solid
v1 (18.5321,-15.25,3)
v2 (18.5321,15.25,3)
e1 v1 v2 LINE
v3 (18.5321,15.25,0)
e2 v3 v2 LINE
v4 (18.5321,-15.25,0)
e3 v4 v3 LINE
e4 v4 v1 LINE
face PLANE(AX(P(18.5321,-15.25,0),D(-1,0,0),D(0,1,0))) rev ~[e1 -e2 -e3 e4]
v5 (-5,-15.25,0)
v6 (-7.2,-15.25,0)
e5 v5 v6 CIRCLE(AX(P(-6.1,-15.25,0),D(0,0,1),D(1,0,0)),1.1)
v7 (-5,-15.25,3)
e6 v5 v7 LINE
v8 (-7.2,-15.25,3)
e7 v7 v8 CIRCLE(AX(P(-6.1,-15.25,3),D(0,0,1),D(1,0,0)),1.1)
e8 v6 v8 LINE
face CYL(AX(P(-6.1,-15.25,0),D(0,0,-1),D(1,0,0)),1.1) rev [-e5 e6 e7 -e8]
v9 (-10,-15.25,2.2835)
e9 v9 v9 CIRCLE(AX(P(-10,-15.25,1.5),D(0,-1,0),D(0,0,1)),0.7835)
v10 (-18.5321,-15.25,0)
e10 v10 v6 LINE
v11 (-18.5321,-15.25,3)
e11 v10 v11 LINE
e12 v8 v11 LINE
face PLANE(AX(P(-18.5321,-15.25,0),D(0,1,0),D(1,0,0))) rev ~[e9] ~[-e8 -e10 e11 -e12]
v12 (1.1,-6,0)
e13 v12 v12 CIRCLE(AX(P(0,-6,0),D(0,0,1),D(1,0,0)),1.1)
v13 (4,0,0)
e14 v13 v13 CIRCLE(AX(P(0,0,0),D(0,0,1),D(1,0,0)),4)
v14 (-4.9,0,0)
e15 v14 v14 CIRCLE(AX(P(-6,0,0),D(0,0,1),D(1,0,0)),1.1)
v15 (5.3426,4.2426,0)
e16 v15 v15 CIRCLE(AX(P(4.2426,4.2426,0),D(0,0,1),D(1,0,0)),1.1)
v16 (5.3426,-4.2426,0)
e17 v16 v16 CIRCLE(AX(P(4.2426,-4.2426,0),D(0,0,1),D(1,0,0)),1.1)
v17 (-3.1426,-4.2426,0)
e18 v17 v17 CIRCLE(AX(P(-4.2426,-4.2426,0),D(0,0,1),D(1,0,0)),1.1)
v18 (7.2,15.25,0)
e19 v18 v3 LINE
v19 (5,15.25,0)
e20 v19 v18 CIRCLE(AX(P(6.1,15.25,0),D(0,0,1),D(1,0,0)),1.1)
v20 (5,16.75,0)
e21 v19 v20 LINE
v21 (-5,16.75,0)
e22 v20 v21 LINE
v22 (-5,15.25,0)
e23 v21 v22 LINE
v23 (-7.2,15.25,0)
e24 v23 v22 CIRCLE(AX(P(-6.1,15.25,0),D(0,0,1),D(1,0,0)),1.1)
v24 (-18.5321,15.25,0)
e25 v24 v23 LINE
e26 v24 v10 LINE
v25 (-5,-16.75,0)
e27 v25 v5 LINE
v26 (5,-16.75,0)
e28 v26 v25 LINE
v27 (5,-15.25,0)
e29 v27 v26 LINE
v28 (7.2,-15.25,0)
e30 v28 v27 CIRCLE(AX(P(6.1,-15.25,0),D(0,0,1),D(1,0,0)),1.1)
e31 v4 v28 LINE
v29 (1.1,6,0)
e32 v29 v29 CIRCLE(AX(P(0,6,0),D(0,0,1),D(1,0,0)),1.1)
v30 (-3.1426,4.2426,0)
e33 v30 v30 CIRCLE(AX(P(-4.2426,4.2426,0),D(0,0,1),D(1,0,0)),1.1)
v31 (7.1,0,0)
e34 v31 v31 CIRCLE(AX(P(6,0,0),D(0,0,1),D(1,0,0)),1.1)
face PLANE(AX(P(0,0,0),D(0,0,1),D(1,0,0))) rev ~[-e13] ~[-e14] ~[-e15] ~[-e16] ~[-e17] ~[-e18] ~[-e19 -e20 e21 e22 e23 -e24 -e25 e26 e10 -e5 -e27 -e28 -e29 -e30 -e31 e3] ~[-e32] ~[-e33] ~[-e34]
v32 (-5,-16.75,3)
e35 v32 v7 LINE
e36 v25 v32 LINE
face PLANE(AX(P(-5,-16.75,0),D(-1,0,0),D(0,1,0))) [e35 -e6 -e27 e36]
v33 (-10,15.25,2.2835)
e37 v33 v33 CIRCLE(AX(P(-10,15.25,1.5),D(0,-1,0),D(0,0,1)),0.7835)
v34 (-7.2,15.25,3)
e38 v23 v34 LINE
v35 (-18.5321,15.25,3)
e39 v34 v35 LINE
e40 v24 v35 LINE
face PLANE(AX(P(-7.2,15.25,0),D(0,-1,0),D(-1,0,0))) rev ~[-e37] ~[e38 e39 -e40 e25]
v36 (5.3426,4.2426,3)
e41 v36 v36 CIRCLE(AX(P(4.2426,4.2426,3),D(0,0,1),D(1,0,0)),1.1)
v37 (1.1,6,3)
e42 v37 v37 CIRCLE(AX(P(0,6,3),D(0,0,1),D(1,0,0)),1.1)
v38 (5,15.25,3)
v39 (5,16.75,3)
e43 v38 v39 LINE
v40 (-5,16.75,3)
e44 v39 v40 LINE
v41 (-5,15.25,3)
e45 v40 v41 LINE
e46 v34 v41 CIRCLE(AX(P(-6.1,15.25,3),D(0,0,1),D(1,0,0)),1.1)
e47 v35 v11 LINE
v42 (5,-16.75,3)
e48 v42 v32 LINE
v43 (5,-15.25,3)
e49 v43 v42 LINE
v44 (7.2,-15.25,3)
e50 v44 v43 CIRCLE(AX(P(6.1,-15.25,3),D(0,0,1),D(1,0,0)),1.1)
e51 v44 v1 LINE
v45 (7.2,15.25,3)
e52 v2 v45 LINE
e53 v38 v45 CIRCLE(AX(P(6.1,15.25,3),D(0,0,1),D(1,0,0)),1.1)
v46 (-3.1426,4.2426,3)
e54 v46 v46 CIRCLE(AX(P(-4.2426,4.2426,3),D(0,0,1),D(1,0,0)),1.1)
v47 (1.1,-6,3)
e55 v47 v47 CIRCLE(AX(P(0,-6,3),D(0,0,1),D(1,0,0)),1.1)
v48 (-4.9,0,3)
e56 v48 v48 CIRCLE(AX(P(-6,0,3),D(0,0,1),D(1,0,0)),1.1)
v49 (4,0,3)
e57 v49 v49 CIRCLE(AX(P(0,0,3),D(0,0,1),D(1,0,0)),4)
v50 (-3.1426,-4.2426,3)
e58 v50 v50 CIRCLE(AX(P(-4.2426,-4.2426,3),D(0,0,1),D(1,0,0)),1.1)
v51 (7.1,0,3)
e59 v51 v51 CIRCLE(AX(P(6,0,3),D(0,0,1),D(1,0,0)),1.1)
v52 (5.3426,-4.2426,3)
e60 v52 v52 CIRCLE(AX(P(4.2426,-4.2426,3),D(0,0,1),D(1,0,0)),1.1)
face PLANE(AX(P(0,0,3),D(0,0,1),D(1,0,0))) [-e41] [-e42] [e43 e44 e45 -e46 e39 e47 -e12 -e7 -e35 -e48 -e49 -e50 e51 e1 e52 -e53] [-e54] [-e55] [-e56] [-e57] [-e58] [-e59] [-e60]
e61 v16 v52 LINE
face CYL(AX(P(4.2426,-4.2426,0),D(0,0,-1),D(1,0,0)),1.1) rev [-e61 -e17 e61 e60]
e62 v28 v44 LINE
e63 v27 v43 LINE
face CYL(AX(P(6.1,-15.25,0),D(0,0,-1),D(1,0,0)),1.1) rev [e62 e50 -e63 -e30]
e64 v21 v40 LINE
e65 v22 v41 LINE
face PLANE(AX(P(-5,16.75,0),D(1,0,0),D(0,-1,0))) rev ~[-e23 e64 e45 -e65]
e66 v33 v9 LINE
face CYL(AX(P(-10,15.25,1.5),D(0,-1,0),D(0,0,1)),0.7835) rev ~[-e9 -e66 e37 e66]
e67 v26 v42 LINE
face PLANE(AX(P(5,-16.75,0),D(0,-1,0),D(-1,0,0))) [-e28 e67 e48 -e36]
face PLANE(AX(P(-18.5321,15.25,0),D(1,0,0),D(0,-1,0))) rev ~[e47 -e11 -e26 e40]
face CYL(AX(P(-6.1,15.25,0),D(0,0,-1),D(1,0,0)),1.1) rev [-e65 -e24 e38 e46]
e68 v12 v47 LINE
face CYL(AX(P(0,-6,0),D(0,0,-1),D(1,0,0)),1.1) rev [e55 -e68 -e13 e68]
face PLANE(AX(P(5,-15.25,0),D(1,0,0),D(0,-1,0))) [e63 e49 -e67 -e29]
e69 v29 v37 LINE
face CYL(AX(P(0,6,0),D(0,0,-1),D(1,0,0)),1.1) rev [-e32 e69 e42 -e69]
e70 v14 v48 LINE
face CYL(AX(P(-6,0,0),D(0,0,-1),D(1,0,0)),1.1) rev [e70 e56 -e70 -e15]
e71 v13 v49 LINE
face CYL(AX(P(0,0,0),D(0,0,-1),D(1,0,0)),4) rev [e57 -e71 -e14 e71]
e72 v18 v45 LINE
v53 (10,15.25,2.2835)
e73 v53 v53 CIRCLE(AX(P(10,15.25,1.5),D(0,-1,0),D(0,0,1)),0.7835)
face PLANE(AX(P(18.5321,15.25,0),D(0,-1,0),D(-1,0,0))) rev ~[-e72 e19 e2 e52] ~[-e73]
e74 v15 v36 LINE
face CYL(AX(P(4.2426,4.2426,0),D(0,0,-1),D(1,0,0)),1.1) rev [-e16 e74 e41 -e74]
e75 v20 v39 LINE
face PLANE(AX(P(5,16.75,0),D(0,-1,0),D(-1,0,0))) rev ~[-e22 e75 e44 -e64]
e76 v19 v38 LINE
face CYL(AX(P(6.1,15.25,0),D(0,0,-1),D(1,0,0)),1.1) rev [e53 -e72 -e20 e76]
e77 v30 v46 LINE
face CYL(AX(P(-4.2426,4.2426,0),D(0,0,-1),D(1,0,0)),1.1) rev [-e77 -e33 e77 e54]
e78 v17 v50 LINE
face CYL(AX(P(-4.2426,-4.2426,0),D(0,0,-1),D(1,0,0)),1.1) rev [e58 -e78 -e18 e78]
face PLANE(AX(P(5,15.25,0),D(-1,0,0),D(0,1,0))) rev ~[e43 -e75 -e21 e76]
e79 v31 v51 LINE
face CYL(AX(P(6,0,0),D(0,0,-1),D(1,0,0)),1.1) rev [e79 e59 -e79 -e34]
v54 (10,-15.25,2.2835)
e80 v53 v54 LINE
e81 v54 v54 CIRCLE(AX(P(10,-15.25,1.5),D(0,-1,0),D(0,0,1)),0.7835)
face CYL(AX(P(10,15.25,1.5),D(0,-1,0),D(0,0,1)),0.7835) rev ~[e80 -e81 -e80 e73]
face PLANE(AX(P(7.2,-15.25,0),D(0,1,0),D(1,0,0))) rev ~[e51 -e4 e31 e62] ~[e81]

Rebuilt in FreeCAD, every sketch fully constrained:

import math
import FreeCAD as App
import Part
import Sketcher
Q = App.Units.Quantity


def add_polygon(sketch, points):
    """Adds a closed chain of lines whose ends are joined by coincident constraints."""
    first, n = sketch.GeometryCount, len(points)
    for a, b in zip(points, points[1:] + points[:1]):
        sketch.addGeometry(Part.LineSegment(App.Vector(*a, 0), App.Vector(*b, 0)), False)
    for i in range(n):
        sketch.addConstraint(Sketcher.Constraint("Coincident", first + i, 2, first + (i + 1) % n, 1))

doc = App.newDocument("Part")
body = doc.addObject("PartDesign::Body", "Body")

# Sketch on XY plane
sketch1 = doc.addObject("Sketcher::SketchObject", "Sketch")
body.addObject(sketch1)
sketch1.AttachmentSupport = (doc.XY_Plane, [""])
sketch1.MapMode = "FlatFace"
add_polygon(sketch1, [(-18.5, -15.2), (-5, -15.2), (-5, -16.8), (5, -16.8), (5, -15.2), (18.5, -15.2), (18.5, 15.2), (5, 15.2), (5, 16.8), (-5, 16.8), (-5, 15.2), (-18.5, 15.2)])  # lines 0-11
sketch1.addGeometry(Part.Circle(App.Vector(-4.2, -4.2, 0), App.Vector(0, 0, 1), 1.1), False)  # 12
sketch1.addGeometry(Part.Circle(App.Vector(0, -6, 0), App.Vector(0, 0, 1), 1.1), False)  # 13
sketch1.addGeometry(Part.Circle(App.Vector(4.2, -4.2, 0), App.Vector(0, 0, 1), 1.1), False)  # 14
sketch1.addGeometry(Part.Circle(App.Vector(-6, 0, 0), App.Vector(0, 0, 1), 1.1), False)  # 15
sketch1.addGeometry(Part.Circle(App.Vector(-4.2, 4.2, 0), App.Vector(0, 0, 1), 1.1), False)  # 16
sketch1.addGeometry(Part.Circle(App.Vector(0, 0, 0), App.Vector(0, 0, 1), 4), False)  # 17
sketch1.addGeometry(Part.Circle(App.Vector(4.2, 4.2, 0), App.Vector(0, 0, 1), 1.1), False)  # 18
sketch1.addGeometry(Part.Circle(App.Vector(6, 0, 0), App.Vector(0, 0, 1), 1.1), False)  # 19
sketch1.addGeometry(Part.Circle(App.Vector(0, 6, 0), App.Vector(0, 0, 1), 1.1), False)  # 20
sketch1.addConstraint(Sketcher.Constraint("Horizontal", 0))
sketch1.addConstraint(Sketcher.Constraint("Vertical", 1))
sketch1.addConstraint(Sketcher.Constraint("Horizontal", 2))
sketch1.addConstraint(Sketcher.Constraint("Vertical", 3))
sketch1.addConstraint(Sketcher.Constraint("Horizontal", 4))
sketch1.addConstraint(Sketcher.Constraint("Vertical", 5))
sketch1.addConstraint(Sketcher.Constraint("Horizontal", 6))
sketch1.addConstraint(Sketcher.Constraint("Vertical", 7))
sketch1.addConstraint(Sketcher.Constraint("Horizontal", 8))
sketch1.addConstraint(Sketcher.Constraint("Vertical", 9))
sketch1.addConstraint(Sketcher.Constraint("Horizontal", 10))
sketch1.addConstraint(Sketcher.Constraint("Vertical", 11))
sketch1.addConstraint(Sketcher.Constraint("Coincident", 17, 3, -1, 1))
sketch1.addConstraint(Sketcher.Constraint("Equal", 12, 13))
sketch1.addConstraint(Sketcher.Constraint("Equal", 13, 14))
sketch1.addConstraint(Sketcher.Constraint("Equal", 14, 15))
sketch1.addConstraint(Sketcher.Constraint("Equal", 15, 16))
sketch1.addConstraint(Sketcher.Constraint("Equal", 16, 18))
sketch1.addConstraint(Sketcher.Constraint("Equal", 18, 19))
sketch1.addConstraint(Sketcher.Constraint("Equal", 19, 20))
sketch1.addConstraint(Sketcher.Constraint("Symmetric", 14, 3, 16, 3, -1, 1))
sketch1.addConstraint(Sketcher.Constraint("Symmetric", 12, 3, 18, 3, -1, 1))
sketch1.addConstraint(Sketcher.Constraint("Symmetric", 15, 3, 19, 3, -1, 1))
sketch1.addConstraint(Sketcher.Constraint("Symmetric", 13, 3, 20, 3, -1, 1))
sketch1.addConstraint(Sketcher.Constraint("Symmetric", 0, 2, 6, 2, -1, 1))
sketch1.addConstraint(Sketcher.Constraint("Symmetric", 2, 2, 8, 2, -1, 1))
sketch1.addConstraint(Sketcher.Constraint("Symmetric", 4, 2, 10, 2, -1, 1))
sketch1.addConstraint(Sketcher.Constraint("Symmetric", 12, 3, 14, 3, -2))
sketch1.addConstraint(Sketcher.Constraint("Symmetric", 0, 2, 3, 2, -2))
sketch1.addConstraint(Sketcher.Constraint("PointOnObject", 13, 3, -2))
sketch1.addConstraint(Sketcher.Constraint("PointOnObject", 15, 3, -1))
sketch1.addConstraint(Sketcher.Constraint("Diameter", 17, Q("8 mm")))
sketch1.addConstraint(Sketcher.Constraint("Diameter", 12, Q("2.2 mm")))
sketch1.addConstraint(Sketcher.Constraint("DistanceX", 2, 1, 2, 2, Q("10 mm")))
sketch1.addConstraint(Sketcher.Constraint("DistanceY", 1, 2, 1, 1, Q("1.5 mm")))
sketch1.addConstraint(Sketcher.Constraint("DistanceY", 5, 1, 5, 2, Q("30.5 mm")))
sketch1.addConstraint(Sketcher.Constraint("DistanceY", 13, 3, -1, 1, Q("6 mm")))
sketch1.addConstraint(Sketcher.Constraint("DistanceX", 15, 3, -1, 1, Q("6 mm")))
sketch1.addConstraint(Sketcher.Constraint("DistanceX", 0, 1, 0, 2, Q("13.532 mm")))
sketch1.addConstraint(Sketcher.Constraint("DistanceX", 12, 3, -1, 1, Q("4.2426 mm")))
sketch1.addConstraint(Sketcher.Constraint("DistanceY", 12, 3, -1, 1, Q("4.2426 mm")))
pad1 = doc.addObject("PartDesign::Pad", "Pad")
body.addObject(pad1)
pad1.Profile = sketch1
pad1.Length = 3

# Sketch on XY plane
sketch2 = doc.addObject("Sketcher::SketchObject", "Sketch001")
body.addObject(sketch2)
sketch2.AttachmentSupport = (doc.XY_Plane, [""])
sketch2.MapMode = "FlatFace"
sketch2.addGeometry(Part.LineSegment(App.Vector(-7.2, -15.2, 0), App.Vector(-5, -15.2, 0)), False)
sketch2.addGeometry(Part.ArcOfCircle(Part.Circle(App.Vector(-6.1, -15.2, 0), App.Vector(0, 0, 1), 1.1), math.radians(0), math.radians(180)), False)
sketch2.addGeometry(Part.ArcOfCircle(Part.Circle(App.Vector(6.1, -15.2, 0), App.Vector(0, 0, 1), 1.1), math.radians(0), math.radians(180)), False)
sketch2.addGeometry(Part.LineSegment(App.Vector(5, -15.2, 0), App.Vector(7.2, -15.2, 0)), False)
sketch2.addGeometry(Part.LineSegment(App.Vector(-5, 15.2, 0), App.Vector(-7.2, 15.2, 0)), False)
sketch2.addGeometry(Part.ArcOfCircle(Part.Circle(App.Vector(-6.1, 15.2, 0), App.Vector(0, 0, 1), 1.1), math.radians(180), math.radians(360)), False)
sketch2.addGeometry(Part.ArcOfCircle(Part.Circle(App.Vector(6.1, 15.2, 0), App.Vector(0, 0, 1), 1.1), math.radians(180), math.radians(360)), False)
sketch2.addGeometry(Part.LineSegment(App.Vector(7.2, 15.2, 0), App.Vector(5, 15.2, 0)), False)
sketch2.addConstraint(Sketcher.Constraint("Coincident", 0, 1, 1, 2))
sketch2.addConstraint(Sketcher.Constraint("Coincident", 1, 1, 0, 2))
sketch2.addConstraint(Sketcher.Constraint("Coincident", 2, 1, 3, 2))
sketch2.addConstraint(Sketcher.Constraint("Coincident", 3, 1, 2, 2))
sketch2.addConstraint(Sketcher.Constraint("Coincident", 4, 1, 5, 2))
sketch2.addConstraint(Sketcher.Constraint("Coincident", 5, 1, 4, 2))
sketch2.addConstraint(Sketcher.Constraint("Coincident", 6, 1, 7, 2))
sketch2.addConstraint(Sketcher.Constraint("Coincident", 7, 1, 6, 2))
sketch2.addConstraint(Sketcher.Constraint("Horizontal", 0))
sketch2.addConstraint(Sketcher.Constraint("Horizontal", 3))
sketch2.addConstraint(Sketcher.Constraint("Horizontal", 4))
sketch2.addConstraint(Sketcher.Constraint("Horizontal", 7))
sketch2.addConstraint(Sketcher.Constraint("Equal", 1, 2))
sketch2.addConstraint(Sketcher.Constraint("Equal", 2, 5))
sketch2.addConstraint(Sketcher.Constraint("Equal", 5, 6))
sketch2.addConstraint(Sketcher.Constraint("Symmetric", 2, 3, 5, 3, -1, 1))
sketch2.addConstraint(Sketcher.Constraint("Symmetric", 1, 3, 6, 3, -1, 1))
sketch2.addConstraint(Sketcher.Constraint("Symmetric", 1, 3, 2, 3, -2))
sketch2.addConstraint(Sketcher.Constraint("Horizontal", 2, 3, 0, 1))
sketch2.addConstraint(Sketcher.Constraint("Horizontal", 1, 1, 2, 1))
sketch2.addConstraint(Sketcher.Constraint("Horizontal", 6, 3, 4, 1))
sketch2.addConstraint(Sketcher.Constraint("Horizontal", 5, 1, 6, 1))
sketch2.addConstraint(Sketcher.Constraint("Radius", 1, Q("1.1 mm")))
sketch2.addConstraint(Sketcher.Constraint("DistanceX", 1, 1, 3, 1, Q("10 mm")))
sketch2.addConstraint(Sketcher.Constraint("DistanceY", 1, 3, 5, 3, Q("30.5 mm")))
pocket1 = doc.addObject("PartDesign::Pocket", "Pocket")
body.addObject(pocket1)
pocket1.Profile = sketch2
pocket1.Length = 3
pocket1.Reversed = True

# Sketch on XZ plane
sketch3 = doc.addObject("Sketcher::SketchObject", "Sketch002")
body.addObject(sketch3)
sketch3.AttachmentSupport = (doc.XZ_Plane, [""])
sketch3.MapMode = "FlatFace"
sketch3.AttachmentOffset = App.Placement(App.Vector(0, 0, -15.25), App.Rotation())
sketch3.addGeometry(Part.Circle(App.Vector(10, 1.5, 0), App.Vector(0, 0, 1), 0.8), False)
sketch3.addGeometry(Part.Circle(App.Vector(-10, 1.5, 0), App.Vector(0, 0, 1), 0.8), False)
sketch3.addConstraint(Sketcher.Constraint("Equal", 0, 1))
sketch3.addConstraint(Sketcher.Constraint("Symmetric", 0, 3, 1, 3, -2))
sketch3.addConstraint(Sketcher.Constraint("Diameter", 0, Q("1.567 mm")))
sketch3.addConstraint(Sketcher.Constraint("DistanceX", -1, 1, 0, 3, Q("10 mm")))
sketch3.addConstraint(Sketcher.Constraint("DistanceY", -1, 1, 0, 3, Q("1.5 mm")))
doc.recompute()
hole = doc.addObject("PartDesign::Hole", "Hole")
body.addObject(hole)
hole.Profile = sketch3
hole.ThreadType = "None"
hole.Diameter = 1.567
hole.DepthType = "ThroughAll"
hole.Reversed = True

doc.recompute()
